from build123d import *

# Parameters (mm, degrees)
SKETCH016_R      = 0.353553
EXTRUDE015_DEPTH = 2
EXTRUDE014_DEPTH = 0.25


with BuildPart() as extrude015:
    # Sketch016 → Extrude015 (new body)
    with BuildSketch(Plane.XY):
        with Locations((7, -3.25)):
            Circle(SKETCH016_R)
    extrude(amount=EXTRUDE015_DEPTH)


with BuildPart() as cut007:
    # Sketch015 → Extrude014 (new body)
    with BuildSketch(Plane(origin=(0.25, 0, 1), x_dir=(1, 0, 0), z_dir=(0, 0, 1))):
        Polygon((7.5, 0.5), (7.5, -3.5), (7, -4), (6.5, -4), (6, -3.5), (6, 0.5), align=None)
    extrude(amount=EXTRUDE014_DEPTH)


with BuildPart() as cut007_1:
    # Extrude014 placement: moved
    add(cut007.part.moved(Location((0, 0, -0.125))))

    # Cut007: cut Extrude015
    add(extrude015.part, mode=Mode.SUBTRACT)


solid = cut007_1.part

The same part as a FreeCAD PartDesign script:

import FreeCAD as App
import Part
import Sketcher
from FreeCAD import Vector
Q = App.Units.Quantity


def add_polygon(sketch, points):
    """Adds a closed chain of lines whose ends are joined by coincident constraints."""
    first, n = sketch.GeometryCount, len(points)
    for a, b in zip(points, points[1:] + points[:1]):
        sketch.addGeometry(Part.LineSegment(App.Vector(*a, 0), App.Vector(*b, 0)), False)
    for i in range(n):
        sketch.addConstraint(Sketcher.Constraint("Coincident", first + i, 2, first + (i + 1) % n, 1))

doc = App.newDocument("Part")
params = doc.addObject("Spreadsheet::Sheet", "Params")
for row, (alias, value) in enumerate([
    ("pad1_length", "2 mm"),
    ("sketch2_height", "4 mm"),
    ("sketch2_width", "1.5 mm"),
    ("sketch2_width2", "0.5 mm"),
    ("pad2_length", "0.25 mm"),
], start=1):
    params.set(f"A{row}", alias)
    params.set(f"B{row}", "=" + value)
    params.setAlias(f"B{row}", alias)

body = doc.addObject("PartDesign::Body", "Body")

# Sketch on XY plane
sketch1 = body.newObject("Sketcher::SketchObject", "Sketch")
sketch1.AttachmentSupport = (doc.getObject("XY_Plane"), [""])
sketch1.MapMode = "FlatFace"
sketch1.addGeometry(Part.Circle(Vector(7, -3.25, 0), Vector(0, 0, 1), 0.35), False)
sketch1.addConstraint([
    Sketcher.Constraint("DistanceX", -1, 1, 0, 3, Q("7 mm")),
    Sketcher.Constraint("DistanceY", 0, 3, -1, 1, Q("3.25 mm")),
    Sketcher.Constraint("Diameter", 0, Q("0.707106 mm")),
])
pad1 = body.newObject("PartDesign::Pad", "Pad")
pad1.Profile = sketch1
pad1.setExpression("Length", "Params.pad1_length")
body2 = doc.addObject("PartDesign::Body", "Body001")

# Sketch on XY plane
sketch2 = body2.newObject("Sketcher::SketchObject", "Sketch001")
sketch2.AttachmentSupport = (doc.getObject("XY_Plane001"), [""])
sketch2.MapMode = "FlatFace"
sketch2.AttachmentOffset = App.Placement(Vector(0, 0, 1), App.Rotation())
add_polygon(sketch2, [(7.8, -3.5), (7.8, 0.5), (6.2, 0.5), (6.2, -3.5), (6.8, -4), (7.2, -4)])  # lines 0-5
sketch2.addConstraint([
    Sketcher.Constraint("Vertical", 0),
    Sketcher.Constraint("Horizontal", 1),
    Sketcher.Constraint("Vertical", 2),
    Sketcher.Constraint("Horizontal", 4),
    Sketcher.Constraint("Perpendicular", 3, 5),
    Sketcher.Constraint("Horizontal", 2, 2, 5, 2),
    Sketcher.Constraint("Equal", 3, 5),
    Sketcher.Constraint("DistanceY", 0, 1, 0, 2, Q("4 mm")),
    Sketcher.Constraint("DistanceX", 1, 2, 1, 1, Q("1.5 mm")),
    Sketcher.Constraint("DistanceX", 4, 1, 4, 2, Q("0.5 mm")),
    Sketcher.Constraint("DistanceY", 3, 2, -1, 1, Q("4 mm")),
    Sketcher.Constraint("DistanceX", -1, 1, 0, 2, Q("7.75 mm")),
])
sketch2.setExpression("Constraints[13]", "Params.sketch2_height")
sketch2.setExpression("Constraints[14]", "Params.sketch2_width")
sketch2.setExpression("Constraints[15]", "Params.sketch2_width2")
pad2 = body2.newObject("PartDesign::Pad", "Pad001")
pad2.Profile = sketch2
pad2.setExpression("Length", "Params.pad2_length")
body3 = doc.addObject("PartDesign::Body", "Body002")
doc.recompute()

body2.Placement = App.Placement(Vector(0, 0, -0.125), App.Rotation(Vector(0, 0, 1), 0))
boolean = body3.newObject("PartDesign::Boolean", "Boolean")
boolean.Type = "Fuse"
boolean.addObjects([body2])
doc.recompute()

boolean2 = body3.newObject("PartDesign::Boolean", "Boolean001")
boolean2.Type = "Cut"
boolean2.addObjects([body])

doc.recompute()
